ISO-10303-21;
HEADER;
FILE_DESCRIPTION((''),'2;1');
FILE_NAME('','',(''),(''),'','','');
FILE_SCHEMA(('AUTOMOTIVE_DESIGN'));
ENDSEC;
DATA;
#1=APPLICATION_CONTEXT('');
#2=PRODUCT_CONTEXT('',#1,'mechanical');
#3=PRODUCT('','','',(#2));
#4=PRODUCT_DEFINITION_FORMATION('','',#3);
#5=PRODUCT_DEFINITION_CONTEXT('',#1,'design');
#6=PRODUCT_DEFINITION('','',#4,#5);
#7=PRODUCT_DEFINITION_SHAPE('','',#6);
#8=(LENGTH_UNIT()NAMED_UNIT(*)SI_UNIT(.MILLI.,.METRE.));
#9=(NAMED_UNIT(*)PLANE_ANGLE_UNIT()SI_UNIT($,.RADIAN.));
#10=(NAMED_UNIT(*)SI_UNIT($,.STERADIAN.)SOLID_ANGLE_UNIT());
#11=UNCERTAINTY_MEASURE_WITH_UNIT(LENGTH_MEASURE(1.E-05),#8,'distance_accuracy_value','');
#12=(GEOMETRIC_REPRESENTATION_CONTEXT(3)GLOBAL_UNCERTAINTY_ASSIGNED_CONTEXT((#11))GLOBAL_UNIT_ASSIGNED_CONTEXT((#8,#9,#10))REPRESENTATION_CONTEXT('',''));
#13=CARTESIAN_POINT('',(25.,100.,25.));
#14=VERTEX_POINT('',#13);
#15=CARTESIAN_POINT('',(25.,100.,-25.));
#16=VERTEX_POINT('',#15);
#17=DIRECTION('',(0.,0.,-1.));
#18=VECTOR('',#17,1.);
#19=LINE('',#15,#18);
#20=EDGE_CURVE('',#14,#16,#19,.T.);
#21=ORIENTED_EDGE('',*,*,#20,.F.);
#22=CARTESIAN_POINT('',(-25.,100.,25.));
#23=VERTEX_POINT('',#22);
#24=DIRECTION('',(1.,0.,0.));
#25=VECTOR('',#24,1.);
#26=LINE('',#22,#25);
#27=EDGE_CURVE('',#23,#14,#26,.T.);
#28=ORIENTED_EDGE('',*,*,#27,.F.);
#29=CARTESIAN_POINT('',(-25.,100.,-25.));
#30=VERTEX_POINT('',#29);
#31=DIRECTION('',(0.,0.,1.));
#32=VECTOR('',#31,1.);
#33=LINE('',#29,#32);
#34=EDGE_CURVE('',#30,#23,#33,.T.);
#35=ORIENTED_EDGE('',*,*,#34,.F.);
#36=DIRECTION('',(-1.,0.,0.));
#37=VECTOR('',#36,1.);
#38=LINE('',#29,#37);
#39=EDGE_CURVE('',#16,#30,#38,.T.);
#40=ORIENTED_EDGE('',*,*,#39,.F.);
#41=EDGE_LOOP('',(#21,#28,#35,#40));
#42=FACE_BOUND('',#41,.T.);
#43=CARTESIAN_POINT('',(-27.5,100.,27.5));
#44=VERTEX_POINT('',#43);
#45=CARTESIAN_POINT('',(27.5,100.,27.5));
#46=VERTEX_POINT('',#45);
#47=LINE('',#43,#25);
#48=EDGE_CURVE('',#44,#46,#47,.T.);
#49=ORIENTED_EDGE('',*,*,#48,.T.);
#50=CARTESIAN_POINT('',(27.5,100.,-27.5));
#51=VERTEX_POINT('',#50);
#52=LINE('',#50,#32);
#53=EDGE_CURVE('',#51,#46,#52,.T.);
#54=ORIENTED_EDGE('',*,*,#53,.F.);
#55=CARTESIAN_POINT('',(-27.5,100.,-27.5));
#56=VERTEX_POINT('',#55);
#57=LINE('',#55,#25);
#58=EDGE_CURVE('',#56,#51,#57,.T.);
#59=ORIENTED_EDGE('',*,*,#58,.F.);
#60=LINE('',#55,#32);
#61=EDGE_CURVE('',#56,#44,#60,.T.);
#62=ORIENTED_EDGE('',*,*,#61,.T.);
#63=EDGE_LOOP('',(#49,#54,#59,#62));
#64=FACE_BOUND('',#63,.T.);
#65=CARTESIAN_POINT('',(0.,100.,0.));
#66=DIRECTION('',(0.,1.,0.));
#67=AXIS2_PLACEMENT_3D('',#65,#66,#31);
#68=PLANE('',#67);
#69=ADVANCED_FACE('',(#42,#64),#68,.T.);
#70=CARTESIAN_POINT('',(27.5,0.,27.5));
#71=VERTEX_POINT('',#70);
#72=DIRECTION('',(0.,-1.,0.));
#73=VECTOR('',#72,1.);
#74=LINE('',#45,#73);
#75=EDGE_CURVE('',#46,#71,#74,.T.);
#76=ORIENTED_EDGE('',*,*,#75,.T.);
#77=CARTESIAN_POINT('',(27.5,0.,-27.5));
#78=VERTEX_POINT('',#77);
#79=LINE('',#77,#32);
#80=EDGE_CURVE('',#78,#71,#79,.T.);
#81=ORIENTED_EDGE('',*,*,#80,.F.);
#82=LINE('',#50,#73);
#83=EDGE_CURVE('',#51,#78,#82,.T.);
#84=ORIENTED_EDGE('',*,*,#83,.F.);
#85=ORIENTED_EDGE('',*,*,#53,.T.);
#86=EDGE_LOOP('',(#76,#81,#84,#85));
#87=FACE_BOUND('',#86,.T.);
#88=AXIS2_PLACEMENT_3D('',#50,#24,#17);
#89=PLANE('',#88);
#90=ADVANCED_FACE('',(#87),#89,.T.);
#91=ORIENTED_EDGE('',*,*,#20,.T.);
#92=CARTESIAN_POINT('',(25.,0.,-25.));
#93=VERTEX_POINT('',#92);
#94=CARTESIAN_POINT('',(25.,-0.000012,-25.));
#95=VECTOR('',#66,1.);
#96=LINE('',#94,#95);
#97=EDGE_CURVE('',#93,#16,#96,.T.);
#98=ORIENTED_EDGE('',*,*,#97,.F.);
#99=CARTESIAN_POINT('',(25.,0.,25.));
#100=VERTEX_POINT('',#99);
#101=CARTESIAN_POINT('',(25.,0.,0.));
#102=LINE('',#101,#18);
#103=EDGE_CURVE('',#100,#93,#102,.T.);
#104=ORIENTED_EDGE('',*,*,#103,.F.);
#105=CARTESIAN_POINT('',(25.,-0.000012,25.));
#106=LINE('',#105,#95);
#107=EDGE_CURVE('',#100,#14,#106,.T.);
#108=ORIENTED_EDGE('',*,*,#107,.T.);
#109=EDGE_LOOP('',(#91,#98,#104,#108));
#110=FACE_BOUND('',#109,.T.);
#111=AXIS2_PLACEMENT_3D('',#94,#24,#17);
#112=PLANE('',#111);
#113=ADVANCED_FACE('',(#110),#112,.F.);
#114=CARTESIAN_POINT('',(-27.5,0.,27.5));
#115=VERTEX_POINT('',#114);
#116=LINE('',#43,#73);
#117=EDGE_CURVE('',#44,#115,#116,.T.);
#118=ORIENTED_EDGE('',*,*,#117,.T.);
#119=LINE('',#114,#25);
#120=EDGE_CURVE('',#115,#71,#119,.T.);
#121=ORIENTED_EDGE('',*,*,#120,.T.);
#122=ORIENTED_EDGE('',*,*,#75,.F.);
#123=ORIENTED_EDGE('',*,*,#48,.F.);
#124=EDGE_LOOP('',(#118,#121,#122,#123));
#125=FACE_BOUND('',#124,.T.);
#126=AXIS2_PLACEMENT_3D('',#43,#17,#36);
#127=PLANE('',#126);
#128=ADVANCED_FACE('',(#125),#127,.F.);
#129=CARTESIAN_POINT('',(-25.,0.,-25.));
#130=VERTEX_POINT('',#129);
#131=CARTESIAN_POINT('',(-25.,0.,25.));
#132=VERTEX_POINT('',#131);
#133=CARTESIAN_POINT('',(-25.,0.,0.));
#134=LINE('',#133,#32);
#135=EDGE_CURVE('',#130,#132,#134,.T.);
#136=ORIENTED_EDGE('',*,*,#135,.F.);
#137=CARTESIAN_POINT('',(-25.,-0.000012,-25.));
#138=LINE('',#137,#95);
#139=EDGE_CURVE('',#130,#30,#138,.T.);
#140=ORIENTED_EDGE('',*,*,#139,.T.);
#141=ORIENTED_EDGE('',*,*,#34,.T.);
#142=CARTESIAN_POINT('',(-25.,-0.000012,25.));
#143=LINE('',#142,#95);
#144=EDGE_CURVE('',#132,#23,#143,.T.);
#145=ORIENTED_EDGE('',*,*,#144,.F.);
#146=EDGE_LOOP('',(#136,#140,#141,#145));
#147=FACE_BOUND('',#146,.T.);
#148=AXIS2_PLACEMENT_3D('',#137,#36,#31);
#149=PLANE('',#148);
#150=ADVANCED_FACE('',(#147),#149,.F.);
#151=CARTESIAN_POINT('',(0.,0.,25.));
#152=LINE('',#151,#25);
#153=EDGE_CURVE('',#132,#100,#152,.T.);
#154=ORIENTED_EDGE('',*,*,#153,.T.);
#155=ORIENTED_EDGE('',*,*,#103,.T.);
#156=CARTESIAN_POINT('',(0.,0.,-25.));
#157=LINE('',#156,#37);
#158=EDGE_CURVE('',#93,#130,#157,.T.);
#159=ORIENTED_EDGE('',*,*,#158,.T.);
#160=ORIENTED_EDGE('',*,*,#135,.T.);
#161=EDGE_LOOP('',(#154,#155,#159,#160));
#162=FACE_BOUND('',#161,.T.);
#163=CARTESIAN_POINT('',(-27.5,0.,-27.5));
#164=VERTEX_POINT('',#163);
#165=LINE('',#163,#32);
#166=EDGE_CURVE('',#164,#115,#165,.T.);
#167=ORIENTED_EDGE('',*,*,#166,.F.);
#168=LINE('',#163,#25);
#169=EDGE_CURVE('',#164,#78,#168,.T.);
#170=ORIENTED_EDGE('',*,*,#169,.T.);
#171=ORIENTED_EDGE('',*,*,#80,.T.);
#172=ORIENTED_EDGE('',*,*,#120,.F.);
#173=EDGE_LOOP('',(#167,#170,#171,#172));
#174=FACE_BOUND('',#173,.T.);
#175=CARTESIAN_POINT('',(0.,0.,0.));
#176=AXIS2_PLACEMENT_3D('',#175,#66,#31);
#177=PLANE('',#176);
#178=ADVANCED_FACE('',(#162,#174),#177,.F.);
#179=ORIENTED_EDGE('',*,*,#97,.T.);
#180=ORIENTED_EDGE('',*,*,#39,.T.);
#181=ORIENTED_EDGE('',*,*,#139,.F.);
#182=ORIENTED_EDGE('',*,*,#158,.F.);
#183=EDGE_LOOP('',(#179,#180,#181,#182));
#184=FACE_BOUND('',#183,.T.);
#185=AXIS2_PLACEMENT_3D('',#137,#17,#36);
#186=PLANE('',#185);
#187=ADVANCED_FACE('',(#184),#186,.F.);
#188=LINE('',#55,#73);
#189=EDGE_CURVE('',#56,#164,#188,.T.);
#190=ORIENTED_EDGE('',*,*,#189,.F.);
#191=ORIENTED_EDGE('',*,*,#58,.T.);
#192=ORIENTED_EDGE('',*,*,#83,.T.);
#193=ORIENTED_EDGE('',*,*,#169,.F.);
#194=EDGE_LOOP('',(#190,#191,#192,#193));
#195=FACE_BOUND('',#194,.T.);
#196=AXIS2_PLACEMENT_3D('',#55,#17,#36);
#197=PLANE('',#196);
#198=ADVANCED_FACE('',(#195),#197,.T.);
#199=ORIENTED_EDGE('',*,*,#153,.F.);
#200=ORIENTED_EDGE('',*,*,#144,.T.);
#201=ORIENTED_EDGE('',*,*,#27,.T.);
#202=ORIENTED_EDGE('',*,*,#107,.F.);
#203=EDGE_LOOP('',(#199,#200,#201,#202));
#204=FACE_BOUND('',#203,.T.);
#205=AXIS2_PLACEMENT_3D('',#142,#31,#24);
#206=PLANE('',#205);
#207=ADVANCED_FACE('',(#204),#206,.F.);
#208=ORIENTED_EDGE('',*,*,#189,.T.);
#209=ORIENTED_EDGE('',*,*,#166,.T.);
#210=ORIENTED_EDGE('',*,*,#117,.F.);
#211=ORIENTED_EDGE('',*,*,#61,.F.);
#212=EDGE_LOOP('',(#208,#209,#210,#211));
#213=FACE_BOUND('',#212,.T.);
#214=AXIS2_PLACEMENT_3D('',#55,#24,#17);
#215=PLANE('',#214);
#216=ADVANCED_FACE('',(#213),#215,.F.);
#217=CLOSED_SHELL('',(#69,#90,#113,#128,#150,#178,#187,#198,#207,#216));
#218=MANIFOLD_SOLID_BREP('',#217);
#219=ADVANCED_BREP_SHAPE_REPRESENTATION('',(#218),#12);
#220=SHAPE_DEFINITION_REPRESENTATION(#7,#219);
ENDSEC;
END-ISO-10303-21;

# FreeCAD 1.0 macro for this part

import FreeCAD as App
import Part
import Sketcher
from FreeCAD import Vector
Q = App.Units.Quantity


def add_polygon(sketch, points):
    """Adds a closed chain of lines whose ends are joined by coincident constraints."""
    first, n = sketch.GeometryCount, len(points)
    for a, b in zip(points, points[1:] + points[:1]):
        sketch.addGeometry(Part.LineSegment(App.Vector(*a, 0), App.Vector(*b, 0)), False)
    for i in range(n):
        sketch.addConstraint(Sketcher.Constraint("Coincident", first + i, 2, first + (i + 1) % n, 1))

doc = App.newDocument("Part")
body = doc.addObject("PartDesign::Body", "Body")

# Sketch on XZ plane
sketch1 = body.newObject("Sketcher::SketchObject", "Sketch")
sketch1.AttachmentSupport = (doc.getObject("XZ_Plane"), [""])
sketch1.MapMode = "FlatFace"
add_polygon(sketch1, [(-27.5, -27.5), (-27.5, 27.5), (27.5, 27.5), (27.5, -27.5)])  # lines 0-3
sketch1.addConstraint([
    Sketcher.Constraint("Vertical", 0),
    Sketcher.Constraint("Horizontal", 1),
    Sketcher.Constraint("Vertical", 2),
    Sketcher.Constraint("Horizontal", 3),
    Sketcher.Constraint("Symmetric", 0, 2, 2, 2, -1, 1),
    Sketcher.Constraint("Equal", 3, 0),
    Sketcher.Constraint("DistanceX", 1, 1, 1, 2, Q("55 mm")),
])
pad1 = body.newObject("PartDesign::Pad", "Pad")
pad1.Profile = sketch1
pad1.Length = 100
pad1.Reversed = True

# Sketch on XZ plane
sketch2 = body.newObject("Sketcher::SketchObject", "Sketch001")
sketch2.AttachmentSupport = (doc.getObject("XZ_Plane"), [""])
sketch2.MapMode = "FlatFace"
add_polygon(sketch2, [(-25, -25), (-25, 25), (25, 25), (25, -25)])  # lines 0-3
sketch2.addConstraint([
    Sketcher.Constraint("Vertical", 0),
    Sketcher.Constraint("Horizontal", 1),
    Sketcher.Constraint("Vertical", 2),
    Sketcher.Constraint("Horizontal", 3),
    Sketcher.Constraint("Symmetric", 0, 2, 2, 2, -1, 1),
    Sketcher.Constraint("Equal", 3, 0),
    Sketcher.Constraint("DistanceX", 1, 1, 1, 2, Q("50 mm")),
])
pocket1 = body.newObject("PartDesign::Pocket", "Pocket")
pocket1.Profile = sketch2
pocket1.Type = "ThroughAll"
pocket1.Midplane = True

doc.recompute()
